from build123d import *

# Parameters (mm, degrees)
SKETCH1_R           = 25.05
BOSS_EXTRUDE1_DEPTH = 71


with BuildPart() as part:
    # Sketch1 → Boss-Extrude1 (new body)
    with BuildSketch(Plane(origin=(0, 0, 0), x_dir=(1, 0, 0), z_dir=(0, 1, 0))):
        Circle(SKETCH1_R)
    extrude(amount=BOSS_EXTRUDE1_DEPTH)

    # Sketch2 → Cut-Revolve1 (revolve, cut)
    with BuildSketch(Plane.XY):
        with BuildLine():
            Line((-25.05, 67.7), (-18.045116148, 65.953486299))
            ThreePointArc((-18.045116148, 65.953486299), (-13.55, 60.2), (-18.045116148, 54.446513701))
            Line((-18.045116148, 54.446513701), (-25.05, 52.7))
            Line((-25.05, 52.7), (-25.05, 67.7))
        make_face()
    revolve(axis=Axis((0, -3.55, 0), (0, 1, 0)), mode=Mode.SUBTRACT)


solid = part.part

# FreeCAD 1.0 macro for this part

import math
import FreeCAD as App
import Part
import Sketcher
from FreeCAD import Vector
Q = App.Units.Quantity

doc = App.newDocument("Part")
params = doc.addObject("Spreadsheet::Sheet", "Params")
for row, (alias, value) in enumerate([
    ("sketch1_diameter", "50.1 mm"),
    ("pad1_length", "71 mm"),
    ("sketch2_height", "15 mm"),
    ("groove_angle", "360 deg"),
], start=1):
    params.set(f"A{row}", alias)
    params.set(f"B{row}", "=" + value)
    params.setAlias(f"B{row}", alias)

body = doc.addObject("PartDesign::Body", "Body")

# Sketch on XZ plane
sketch1 = body.newObject("Sketcher::SketchObject", "Sketch")
sketch1.AttachmentSupport = (doc.getObject("XZ_Plane"), [""])
sketch1.MapMode = "FlatFace"
sketch1.addGeometry(Part.Circle(Vector(0, 0, 0), Vector(0, 0, 1), 25), False)
sketch1.addConstraint(Sketcher.Constraint("Coincident", 0, 3, -1, 1))
sketch1.addConstraint(Sketcher.Constraint("Diameter", 0, 50.1))
sketch1.setExpression("Constraints[1]", "Params.sketch1_diameter")
pad1 = body.newObject("PartDesign::Pad", "Pad")
pad1.Profile = sketch1
pad1.setExpression("Length", "Params.pad1_length")
pad1.Reversed = True

# Sketch on XY plane
sketch2 = body.newObject("Sketcher::SketchObject", "Sketch001")
sketch2.AttachmentSupport = (doc.getObject("XY_Plane"), [""])
sketch2.MapMode = "FlatFace"
sketch2.addGeometry(Part.LineSegment(Vector(-18, 66, 0), Vector(-25, 68, 0)), False)
sketch2.addGeometry(Part.LineSegment(Vector(-25, 68, 0), Vector(-25, 53, 0)), False)
sketch2.addGeometry(Part.LineSegment(Vector(-25, 53, 0), Vector(-18, 54, 0)), False)
sketch2.addGeometry(Part.ArcOfCircle(Part.Circle(Vector(-19, 60, 0), Vector(0, 0, 1), 6), math.radians(-76), math.radians(76)), False)
sketch2.addConstraint(Sketcher.Constraint("Coincident", 0, 2, 1, 1))
sketch2.addConstraint(Sketcher.Constraint("Coincident", 1, 2, 2, 1))
sketch2.addConstraint(Sketcher.Constraint("Tangent", 2, 2, 3, 1))
sketch2.addConstraint(Sketcher.Constraint("Tangent", 3, 2, 0, 1))
sketch2.addConstraint(Sketcher.Constraint("Vertical", 1))
sketch2.addConstraint(Sketcher.Constraint("Vertical", 2, 2, 3, 2))
sketch2.addConstraint(Sketcher.Constraint("DistanceY", 1, 2, 1, 1, 15.0))
sketch2.addConstraint(Sketcher.Constraint("Angle", 0, Q("166 deg")))
sketch2.addConstraint(Sketcher.Constraint("DistanceY", -1, 1, 3, 3, 60.2))
sketch2.addConstraint(Sketcher.Constraint("DistanceX", 0, 2, -1, 1, 25.05))
sketch2.addConstraint(Sketcher.Constraint("Radius", 3, 5.929621))
sketch2.setExpression("Constraints[6]", "Params.sketch2_height")
groove = body.newObject("PartDesign::Groove", "Groove")
groove.Profile = sketch2
groove.ReferenceAxis = (sketch2, ["V_Axis"])
groove.setExpression("Angle", "Params.groove_angle")

doc.recompute()
